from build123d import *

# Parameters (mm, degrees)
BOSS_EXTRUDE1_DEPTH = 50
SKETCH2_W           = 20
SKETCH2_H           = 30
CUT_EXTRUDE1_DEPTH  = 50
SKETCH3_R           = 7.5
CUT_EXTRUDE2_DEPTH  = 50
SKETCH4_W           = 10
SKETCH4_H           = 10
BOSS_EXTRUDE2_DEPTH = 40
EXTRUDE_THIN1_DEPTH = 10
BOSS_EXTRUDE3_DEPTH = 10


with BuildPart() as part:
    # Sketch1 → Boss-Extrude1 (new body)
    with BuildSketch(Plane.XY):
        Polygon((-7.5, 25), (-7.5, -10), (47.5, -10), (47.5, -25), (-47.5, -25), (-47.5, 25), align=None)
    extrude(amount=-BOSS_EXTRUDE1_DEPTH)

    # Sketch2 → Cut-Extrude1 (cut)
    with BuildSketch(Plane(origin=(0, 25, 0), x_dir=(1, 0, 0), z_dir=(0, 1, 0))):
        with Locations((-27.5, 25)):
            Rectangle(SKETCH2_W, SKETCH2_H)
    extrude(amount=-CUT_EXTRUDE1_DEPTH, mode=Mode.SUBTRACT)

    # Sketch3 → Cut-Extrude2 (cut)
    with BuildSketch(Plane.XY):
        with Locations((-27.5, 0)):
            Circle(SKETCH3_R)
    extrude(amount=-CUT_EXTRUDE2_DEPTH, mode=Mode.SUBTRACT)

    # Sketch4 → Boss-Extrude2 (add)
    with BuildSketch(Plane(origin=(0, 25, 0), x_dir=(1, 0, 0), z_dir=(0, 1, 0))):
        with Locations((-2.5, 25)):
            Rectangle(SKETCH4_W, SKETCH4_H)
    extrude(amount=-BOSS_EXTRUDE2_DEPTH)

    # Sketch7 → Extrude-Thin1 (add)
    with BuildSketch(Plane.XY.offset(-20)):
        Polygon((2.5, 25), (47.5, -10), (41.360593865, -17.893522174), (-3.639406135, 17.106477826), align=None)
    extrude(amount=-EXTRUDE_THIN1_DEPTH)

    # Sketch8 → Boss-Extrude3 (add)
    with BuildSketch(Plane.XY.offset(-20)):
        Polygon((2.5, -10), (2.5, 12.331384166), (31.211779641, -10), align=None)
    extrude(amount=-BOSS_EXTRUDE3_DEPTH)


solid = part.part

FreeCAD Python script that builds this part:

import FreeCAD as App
import Part
import Sketcher


def add_polygon(sketch, points):
    """Adds a closed chain of lines whose ends are joined by coincident constraints."""
    first, n = sketch.GeometryCount, len(points)
    for a, b in zip(points, points[1:] + points[:1]):
        sketch.addGeometry(Part.LineSegment(App.Vector(*a, 0), App.Vector(*b, 0)), False)
    for i in range(n):
        sketch.addConstraint(Sketcher.Constraint("Coincident", first + i, 2, first + (i + 1) % n, 1))

doc = App.newDocument("Part")
body = doc.addObject("PartDesign::Body", "Body")

sketch1 = doc.addObject("Sketcher::SketchObject", "Sketch")
body.addObject(sketch1)
sketch1.AttachmentSupport = (doc.XY_Plane, [""])
sketch1.MapMode = "FlatFace"
add_polygon(sketch1, [(-7.5, -10), (-7.5, 25), (-47.5, 25), (-47.5, -25), (47.5, -25), (47.5, -10)])
sketch1.addConstraint([
    Sketcher.Constraint("Vertical", 0),
    Sketcher.Constraint("Horizontal", 1),
    Sketcher.Constraint("Vertical", 2),
    Sketcher.Constraint("Horizontal", 3),
    Sketcher.Constraint("Vertical", 4),
    Sketcher.Constraint("Horizontal", 5),
    Sketcher.Constraint("Symmetric", 1, 2, 3, 2, -1, 1),
    Sketcher.Constraint("DistanceX", 1, 2, 1, 1, 40.0),
    Sketcher.Constraint("DistanceX", 3, 1, 3, 2, 95.0),
    Sketcher.Constraint("DistanceY", 0, 1, 0, 2, 35.0),
    Sketcher.Constraint("DistanceY", 2, 2, 2, 1, 50.0),
])
pad1 = doc.addObject("PartDesign::Pad", "Pad")
body.addObject(pad1)
pad1.Profile = sketch1
pad1.Length = 50
pad1.Reversed = True

sketch2 = doc.addObject("Sketcher::SketchObject", "Sketch001")
body.addObject(sketch2)
sketch2.AttachmentSupport = (doc.XZ_Plane, [""])
sketch2.MapMode = "FlatFace"
sketch2.AttachmentOffset = App.Placement(App.Vector(0, 0, -25), App.Rotation())
add_polygon(sketch2, [(-37.5, -40), (-37.5, -10), (-17.5, -10), (-17.5, -40)])
sketch2.addConstraint([
    Sketcher.Constraint("Vertical", 0),
    Sketcher.Constraint("Horizontal", 1),
    Sketcher.Constraint("Vertical", 2),
    Sketcher.Constraint("Horizontal", 3),
    Sketcher.Constraint("DistanceX", 1, 1, 1, 2, 20.0),
    Sketcher.Constraint("DistanceY", 0, 1, 0, 2, 30.0),
    Sketcher.Constraint("DistanceY", 0, 2, -1, 1, 10.0),
    Sketcher.Constraint("DistanceX", 0, 2, -1, 1, 37.5),
])
pocket1 = doc.addObject("PartDesign::Pocket", "Pocket")
body.addObject(pocket1)
pocket1.Profile = sketch2
pocket1.Length = 50
pocket1.Reversed = True

sketch3 = doc.addObject("Sketcher::SketchObject", "Sketch002")
body.addObject(sketch3)
sketch3.AttachmentSupport = (doc.XY_Plane, [""])
sketch3.MapMode = "FlatFace"
sketch3.addGeometry(Part.Circle(App.Vector(-27.5, 0, 0), App.Vector(0, 0, 1), 7.5), False)
sketch3.addConstraint([
    Sketcher.Constraint("PointOnObject", 0, 3, -1),
    Sketcher.Constraint("Diameter", 0, 15.0),
    Sketcher.Constraint("DistanceX", 0, 3, -1, 1, 27.5),
])
pocket2 = doc.addObject("PartDesign::Pocket", "Pocket001")
body.addObject(pocket2)
pocket2.Profile = sketch3
pocket2.Length = 50

sketch4 = doc.addObject("Sketcher::SketchObject", "Sketch003")
body.addObject(sketch4)
sketch4.AttachmentSupport = (doc.XZ_Plane, [""])
sketch4.MapMode = "FlatFace"
sketch4.AttachmentOffset = App.Placement(App.Vector(0, 0, -25), App.Rotation())
add_polygon(sketch4, [(-7.5, -30), (-7.5, -20), (2.5, -20), (2.5, -30)])
sketch4.addConstraint([
    Sketcher.Constraint("Vertical", 0),
    Sketcher.Constraint("Horizontal", 1),
    Sketcher.Constraint("Vertical", 2),
    Sketcher.Constraint("Horizontal", 3),
    Sketcher.Constraint("Equal", 3, 0),
    Sketcher.Constraint("DistanceX", 1, 1, 1, 2, 10.0),
    Sketcher.Constraint("DistanceY", 0, 2, -1, 1, 20.0),
    Sketcher.Constraint("DistanceX", 0, 2, -1, 1, 7.5),
])
pad2 = doc.addObject("PartDesign::Pad", "Pad001")
body.addObject(pad2)
pad2.Profile = sketch4
pad2.Length = 40

sketch5 = doc.addObject("Sketcher::SketchObject", "Sketch004")
body.addObject(sketch5)
sketch5.AttachmentSupport = (doc.XY_Plane, [""])
sketch5.MapMode = "FlatFace"
sketch5.AttachmentOffset = App.Placement(App.Vector(0, 0, -20), App.Rotation())
add_polygon(sketch5, [(47.5, -10), (2.5, 25), (-3.639406, 17.106478), (41.360594, -17.893522)])
sketch5.addConstraint([
    Sketcher.Constraint("Perpendicular", 0, 1),
    Sketcher.Constraint("Perpendicular", 1, 2),
    Sketcher.Constraint("Perpendicular", 2, 3),
    Sketcher.Constraint("Distance", 1, 10.0),
    Sketcher.Constraint("DistanceY", -1, 1, 0, 2, 25.0),
    Sketcher.Constraint("DistanceY", 3, 2, -1, 1, 10.0),
    Sketcher.Constraint("DistanceX", 1, 2, 2, 2, 45.0),
    Sketcher.Constraint("DistanceX", -1, 1, 0, 2, 2.5),
])
pad3 = doc.addObject("PartDesign::Pad", "Pad002")
body.addObject(pad3)
pad3.Profile = sketch5
pad3.Length = 10
pad3.Reversed = True

sketch6 = doc.addObject("Sketcher::SketchObject", "Sketch005")
body.addObject(sketch6)
sketch6.AttachmentSupport = (doc.XY_Plane, [""])
sketch6.MapMode = "FlatFace"
sketch6.AttachmentOffset = App.Placement(App.Vector(0, 0, -20), App.Rotation())
add_polygon(sketch6, [(2.5, 12.331384), (2.5, -10), (31.21178, -10)])
sketch6.addConstraint([
    Sketcher.Constraint("Vertical", 0),
    Sketcher.Constraint("Horizontal", 1),
    Sketcher.Constraint("DistanceY", 0, 2, -1, 1, 10.0),
    Sketcher.Constraint("DistanceX", -1, 1, 0, 2, 2.5),
    Sketcher.Constraint("DistanceX", 1, 1, 1, 2, 28.71178),
    Sketcher.Constraint("Distance", 2, 36.373851),
])
pad4 = doc.addObject("PartDesign::Pad", "Pad003")
body.addObject(pad4)
pad4.Profile = sketch6
pad4.Length = 10
pad4.Reversed = True

doc.recompute()
